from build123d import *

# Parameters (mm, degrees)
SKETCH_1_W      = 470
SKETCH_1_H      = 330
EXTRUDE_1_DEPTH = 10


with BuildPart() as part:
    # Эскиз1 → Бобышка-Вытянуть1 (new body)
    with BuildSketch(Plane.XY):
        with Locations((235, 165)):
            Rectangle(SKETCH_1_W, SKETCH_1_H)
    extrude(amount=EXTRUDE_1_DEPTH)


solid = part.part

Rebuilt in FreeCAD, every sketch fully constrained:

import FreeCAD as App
import Part
import Sketcher
from FreeCAD import Vector
Q = App.Units.Quantity


def add_polygon(sketch, points):
    """Adds a closed chain of lines whose ends are joined by coincident constraints."""
    first, n = sketch.GeometryCount, len(points)
    for a, b in zip(points, points[1:] + points[:1]):
        sketch.addGeometry(Part.LineSegment(App.Vector(*a, 0), App.Vector(*b, 0)), False)
    for i in range(n):
        sketch.addConstraint(Sketcher.Constraint("Coincident", first + i, 2, first + (i + 1) % n, 1))

doc = App.newDocument("Part")
params = doc.addObject("Spreadsheet::Sheet", "Params")
for row, (alias, value) in enumerate([
    ("sketch1_width", "470 mm"),
    ("sketch1_height", "330 mm"),
    ("pad1_length", "10 mm"),
], start=1):
    params.set(f"A{row}", alias)
    params.set(f"B{row}", "=" + value)
    params.setAlias(f"B{row}", alias)

body = doc.addObject("PartDesign::Body", "Body")

sketch1 = body.newObject("Sketcher::SketchObject", "Sketch")
sketch1.AttachmentSupport = (doc.getObject("XY_Plane"), [""])
sketch1.MapMode = "FlatFace"
add_polygon(sketch1, [(0, 330), (0, 0), (470, 0), (470, 330)])
sketch1.addConstraint(Sketcher.Constraint("Vertical", 0))
sketch1.addConstraint(Sketcher.Constraint("Horizontal", 1))
sketch1.addConstraint(Sketcher.Constraint("Vertical", 2))
sketch1.addConstraint(Sketcher.Constraint("Horizontal", 3))
sketch1.addConstraint(Sketcher.Constraint("Coincident", 0, 2, -1, 1))
sketch1.addConstraint(Sketcher.Constraint("DistanceX", 1, 1, 1, 2, Q("470 mm")))
sketch1.addConstraint(Sketcher.Constraint("DistanceY", 0, 2, 0, 1, Q("330 mm")))
sketch1.setExpression("Constraints[9]", "Params.sketch1_width")
sketch1.setExpression("Constraints[10]", "Params.sketch1_height")
pad1 = body.newObject("PartDesign::Pad", "Pad")
pad1.Profile = sketch1
pad1.setExpression("Length", "Params.pad1_length")

doc.recompute()
